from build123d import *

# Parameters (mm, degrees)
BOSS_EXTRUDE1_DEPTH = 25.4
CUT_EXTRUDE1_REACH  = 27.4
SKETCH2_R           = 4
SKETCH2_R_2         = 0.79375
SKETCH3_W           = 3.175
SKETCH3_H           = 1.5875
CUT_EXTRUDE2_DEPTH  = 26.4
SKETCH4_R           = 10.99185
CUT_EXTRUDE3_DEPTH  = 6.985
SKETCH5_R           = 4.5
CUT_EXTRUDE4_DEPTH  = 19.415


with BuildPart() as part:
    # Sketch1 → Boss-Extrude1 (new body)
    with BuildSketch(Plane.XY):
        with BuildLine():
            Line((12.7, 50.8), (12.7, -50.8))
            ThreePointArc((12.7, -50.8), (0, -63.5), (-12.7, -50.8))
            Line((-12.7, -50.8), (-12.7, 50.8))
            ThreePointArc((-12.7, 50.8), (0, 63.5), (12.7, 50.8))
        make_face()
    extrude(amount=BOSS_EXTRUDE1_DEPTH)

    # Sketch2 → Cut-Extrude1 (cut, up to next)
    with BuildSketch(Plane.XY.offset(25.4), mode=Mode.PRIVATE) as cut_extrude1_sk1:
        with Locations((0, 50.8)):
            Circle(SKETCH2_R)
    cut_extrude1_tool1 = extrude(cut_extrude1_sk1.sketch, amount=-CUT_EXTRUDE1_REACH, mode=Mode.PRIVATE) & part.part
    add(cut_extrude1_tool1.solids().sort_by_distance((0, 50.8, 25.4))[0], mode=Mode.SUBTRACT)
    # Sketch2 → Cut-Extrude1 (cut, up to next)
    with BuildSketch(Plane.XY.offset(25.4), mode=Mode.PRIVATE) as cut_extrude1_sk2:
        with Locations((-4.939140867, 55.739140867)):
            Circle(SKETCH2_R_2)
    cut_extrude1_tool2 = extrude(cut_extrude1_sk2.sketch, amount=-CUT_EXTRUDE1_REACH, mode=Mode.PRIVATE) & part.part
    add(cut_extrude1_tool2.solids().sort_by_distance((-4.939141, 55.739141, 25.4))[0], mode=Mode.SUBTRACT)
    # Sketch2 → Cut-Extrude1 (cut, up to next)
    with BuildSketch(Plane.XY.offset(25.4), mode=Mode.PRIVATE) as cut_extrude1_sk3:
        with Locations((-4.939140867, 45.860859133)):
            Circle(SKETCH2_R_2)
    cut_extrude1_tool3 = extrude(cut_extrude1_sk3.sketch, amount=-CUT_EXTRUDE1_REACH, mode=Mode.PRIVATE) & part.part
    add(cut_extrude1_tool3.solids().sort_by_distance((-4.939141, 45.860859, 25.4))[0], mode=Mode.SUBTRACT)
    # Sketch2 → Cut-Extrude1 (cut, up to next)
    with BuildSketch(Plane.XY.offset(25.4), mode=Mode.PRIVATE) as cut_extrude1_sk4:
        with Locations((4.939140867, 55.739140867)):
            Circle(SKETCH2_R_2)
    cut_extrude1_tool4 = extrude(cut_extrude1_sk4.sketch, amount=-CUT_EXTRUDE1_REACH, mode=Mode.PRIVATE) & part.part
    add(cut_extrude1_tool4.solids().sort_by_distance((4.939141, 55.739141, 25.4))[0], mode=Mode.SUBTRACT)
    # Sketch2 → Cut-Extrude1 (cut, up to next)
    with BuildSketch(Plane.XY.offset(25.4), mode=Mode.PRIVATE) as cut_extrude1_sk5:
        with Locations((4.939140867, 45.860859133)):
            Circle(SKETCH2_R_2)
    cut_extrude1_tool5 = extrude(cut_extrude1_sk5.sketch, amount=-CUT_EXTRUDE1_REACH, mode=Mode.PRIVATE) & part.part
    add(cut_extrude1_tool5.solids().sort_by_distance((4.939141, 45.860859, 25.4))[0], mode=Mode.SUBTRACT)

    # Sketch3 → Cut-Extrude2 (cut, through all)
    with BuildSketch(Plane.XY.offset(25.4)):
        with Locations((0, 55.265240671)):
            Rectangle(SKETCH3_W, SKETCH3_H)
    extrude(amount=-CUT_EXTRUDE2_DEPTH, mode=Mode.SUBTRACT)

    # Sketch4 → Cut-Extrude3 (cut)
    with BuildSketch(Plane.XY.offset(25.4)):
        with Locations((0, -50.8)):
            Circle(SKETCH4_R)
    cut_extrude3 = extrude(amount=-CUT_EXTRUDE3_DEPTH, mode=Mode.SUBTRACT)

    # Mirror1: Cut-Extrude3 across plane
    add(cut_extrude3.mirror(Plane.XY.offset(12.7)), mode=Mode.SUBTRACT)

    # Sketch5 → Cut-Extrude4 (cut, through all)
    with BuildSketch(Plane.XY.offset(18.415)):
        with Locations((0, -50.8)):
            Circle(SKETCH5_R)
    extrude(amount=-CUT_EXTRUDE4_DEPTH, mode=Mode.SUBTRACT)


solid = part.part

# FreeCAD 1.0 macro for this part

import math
import FreeCAD as App
import Part
import Sketcher

V = App.Vector
Q = App.Units.Quantity

doc = App.newDocument("Part")
body = doc.addObject("PartDesign::Body", "Body")

sketch1 = doc.addObject("Sketcher::SketchObject", "Sketch")
body.addObject(sketch1)
sketch1.AttachmentSupport = (doc.XY_Plane, [""])
sketch1.MapMode = "FlatFace"
sketch1.addGeometry([
    Part.LineSegment(V(13, -51, 0), V(13, 51, 0)),
    Part.ArcOfCircle(Part.Circle(V(0, 51, 0), V(0, 0, 1), 13), math.radians(0), math.radians(180)),
    Part.LineSegment(V(-13, 51, 0), V(-13, -51, 0)),
    Part.ArcOfCircle(Part.Circle(V(0, -51, 0), V(0, 0, 1), 13), math.radians(180), math.radians(360)),
], False)
sketch1.addConstraint([
    Sketcher.Constraint("Tangent", 0, 2, 1, 1),
    Sketcher.Constraint("Tangent", 1, 2, 2, 1),
    Sketcher.Constraint("Tangent", 2, 2, 3, 1),
    Sketcher.Constraint("Tangent", 3, 2, 0, 1),
    Sketcher.Constraint("Vertical", 0),
    Sketcher.Constraint("Vertical", 2),
    Sketcher.Constraint("Symmetric", 1, 3, 3, 3, -1, 1),
    Sketcher.Constraint("Radius", 1, Q("0.5 in")),
    Sketcher.Constraint("DistanceY", 0, 1, 0, 2, Q("4 in")),
])
pad1 = doc.addObject("PartDesign::Pad", "Pad")
body.addObject(pad1)
pad1.Profile = sketch1
pad1.Length = Q("1 in")

sketch2 = doc.addObject("Sketcher::SketchObject", "Sketch001")
body.addObject(sketch2)
sketch2.AttachmentSupport = (doc.XY_Plane, [""])
sketch2.MapMode = "FlatFace"
sketch2.AttachmentOffset = App.Placement(V(0, 0, 1 * 25.4), App.Rotation())
sketch2.addGeometry(Part.Circle(V(0, 50.8, 0), V(0, 0, 1), 4), False)
sketch2.addConstraint([
    Sketcher.Constraint("PointOnObject", 0, 3, -2),
    Sketcher.Constraint("DistanceY", -1, 1, 0, 3, Q("2 in")),
    Sketcher.Constraint("Diameter", 0, 8.0),
])
pocket1 = doc.addObject("PartDesign::Pocket", "Pocket")
body.addObject(pocket1)
pocket1.Profile = sketch2
pocket1.Type = "UpToFirst"

sketch3 = doc.addObject("Sketcher::SketchObject", "Sketch002")
body.addObject(sketch3)
sketch3.AttachmentSupport = (doc.XY_Plane, [""])
sketch3.MapMode = "FlatFace"
sketch3.AttachmentOffset = App.Placement(V(0, 0, 1 * 25.4), App.Rotation())
sketch3.addGeometry(Part.Circle(V(-4.9, 55.7, 0), V(0, 0, 1), 0.8), False)
sketch3.addConstraint([
    Sketcher.Constraint("Diameter", 0, Q("0.0625 in")),
    Sketcher.Constraint("DistanceX", 0, 3, -1, 1, 4.939141),
    Sketcher.Constraint("DistanceY", -1, 1, 0, 3, 55.739141),
])
pocket2 = doc.addObject("PartDesign::Pocket", "Pocket001")
body.addObject(pocket2)
pocket2.Profile = sketch3
pocket2.Type = "UpToFirst"

sketch4 = doc.addObject("Sketcher::SketchObject", "Sketch003")
body.addObject(sketch4)
sketch4.AttachmentSupport = (doc.XY_Plane, [""])
sketch4.MapMode = "FlatFace"
sketch4.AttachmentOffset = App.Placement(V(0, 0, 1 * 25.4), App.Rotation())
sketch4.addGeometry(Part.Circle(V(-4.9, 45.9, 0), V(0, 0, 1), 0.8), False)
sketch4.addConstraint([
    Sketcher.Constraint("Diameter", 0, Q("0.0625 in")),
    Sketcher.Constraint("DistanceX", 0, 3, -1, 1, 4.939141),
    Sketcher.Constraint("DistanceY", -1, 1, 0, 3, 45.860859),
])
pocket3 = doc.addObject("PartDesign::Pocket", "Pocket002")
body.addObject(pocket3)
pocket3.Profile = sketch4
pocket3.Type = "UpToFirst"

sketch5 = doc.addObject("Sketcher::SketchObject", "Sketch004")
body.addObject(sketch5)
sketch5.AttachmentSupport = (doc.XY_Plane, [""])
sketch5.MapMode = "FlatFace"
sketch5.AttachmentOffset = App.Placement(V(0, 0, 1 * 25.4), App.Rotation())
sketch5.addGeometry(Part.Circle(V(4.9, 55.7, 0), V(0, 0, 1), 0.8), False)
sketch5.addConstraint([
    Sketcher.Constraint("Diameter", 0, Q("0.0625 in")),
    Sketcher.Constraint("DistanceX", -1, 1, 0, 3, 4.939141),
    Sketcher.Constraint("DistanceY", -1, 1, 0, 3, 55.739141),
])
pocket4 = doc.addObject("PartDesign::Pocket", "Pocket003")
body.addObject(pocket4)
pocket4.Profile = sketch5
pocket4.Type = "UpToFirst"

sketch6 = doc.addObject("Sketcher::SketchObject", "Sketch005")
body.addObject(sketch6)
sketch6.AttachmentSupport = (doc.XY_Plane, [""])
sketch6.MapMode = "FlatFace"
sketch6.AttachmentOffset = App.Placement(V(0, 0, 1 * 25.4), App.Rotation())
sketch6.addGeometry(Part.Circle(V(4.9, 45.9, 0), V(0, 0, 1), 0.8), False)
sketch6.addConstraint([
    Sketcher.Constraint("Diameter", 0, Q("0.0625 in")),
    Sketcher.Constraint("DistanceX", -1, 1, 0, 3, 4.939141),
    Sketcher.Constraint("DistanceY", -1, 1, 0, 3, 45.860859),
])
pocket5 = doc.addObject("PartDesign::Pocket", "Pocket004")
body.addObject(pocket5)
pocket5.Profile = sketch6
pocket5.Type = "UpToFirst"

sketch7 = doc.addObject("Sketcher::SketchObject", "Sketch006")
body.addObject(sketch7)
sketch7.AttachmentSupport = (doc.XY_Plane, [""])
sketch7.MapMode = "FlatFace"
sketch7.AttachmentOffset = App.Placement(V(0, 0, 1 * 25.4), App.Rotation())
sketch7.addGeometry([
    Part.LineSegment(V(-1.6, 56.1, 0), V(-1.6, 54.5, 0)),
    Part.LineSegment(V(-1.6, 54.5, 0), V(1.6, 54.5, 0)),
    Part.LineSegment(V(1.6, 54.5, 0), V(1.6, 56.1, 0)),
    Part.LineSegment(V(1.6, 56.1, 0), V(-1.6, 56.1, 0)),
], False)
sketch7.addConstraint([
    Sketcher.Constraint("Coincident", 0, 2, 1, 1),
    Sketcher.Constraint("Coincident", 1, 2, 2, 1),
    Sketcher.Constraint("Coincident", 2, 2, 3, 1),
    Sketcher.Constraint("Coincident", 3, 2, 0, 1),
    Sketcher.Constraint("Vertical", 0),
    Sketcher.Constraint("Horizontal", 1),
    Sketcher.Constraint("Vertical", 2),
    Sketcher.Constraint("Horizontal", 3),
    Sketcher.Constraint("DistanceX", 1, 1, 1, 2, Q("0.125 in")),
    Sketcher.Constraint("DistanceY", 0, 2, 0, 1, Q("0.0625 in")),
    Sketcher.Constraint("DistanceX", 0, 2, -1, 1, Q("0.0625 in")),
    Sketcher.Constraint("DistanceY", -1, 1, 0, 2, 54.471491),
])
pocket6 = doc.addObject("PartDesign::Pocket", "Pocket005")
body.addObject(pocket6)
pocket6.Profile = sketch7
pocket6.Type = "ThroughAll"

sketch8 = doc.addObject("Sketcher::SketchObject", "Sketch007")
body.addObject(sketch8)
sketch8.AttachmentSupport = (doc.XY_Plane, [""])
sketch8.MapMode = "FlatFace"
sketch8.AttachmentOffset = App.Placement(V(0, 0, 1 * 25.4), App.Rotation())
sketch8.addGeometry(Part.Circle(V(0, -51, 0), V(0, 0, 1), 11), False)
sketch8.addConstraint([
    Sketcher.Constraint("PointOnObject", 0, 3, -2),
    Sketcher.Constraint("DistanceY", 0, 3, -1, 1, Q("2 in")),
    Sketcher.Constraint("Diameter", 0, Q("0.8655 in")),
])
pocket7 = doc.addObject("PartDesign::Pocket", "Pocket006")
body.addObject(pocket7)
pocket7.Profile = sketch8
pocket7.Length = Q("0.275 in")
doc.recompute()

datumplane = doc.addObject("PartDesign::Plane", "DatumPlane")
body.addObject(datumplane)
datumplane.AttachmentSupport = (doc.XY_Plane, [""])
datumplane.MapMode = "FlatFace"
datumplane.AttachmentOffset = App.Placement(V(0, 0, 0.5 * 25.4), App.Rotation())
mirrored = doc.addObject("PartDesign::Mirrored", "Mirrored")
body.addObject(mirrored)
mirrored.Originals = [pocket7]
mirrored.MirrorPlane = (datumplane, [""])
body.Tip = mirrored

sketch9 = doc.addObject("Sketcher::SketchObject", "Sketch008")
body.addObject(sketch9)
sketch9.AttachmentSupport = (doc.XY_Plane, [""])
sketch9.MapMode = "FlatFace"
sketch9.AttachmentOffset = App.Placement(V(0, 0, 0.725 * 25.4), App.Rotation())
sketch9.addGeometry(Part.Circle(V(0, -50.8, 0), V(0, 0, 1), 4.5), False)
sketch9.addConstraint([
    Sketcher.Constraint("PointOnObject", 0, 3, -2),
    Sketcher.Constraint("DistanceY", 0, 3, -1, 1, Q("2 in")),
    Sketcher.Constraint("Diameter", 0, 9.0),
])
pocket8 = doc.addObject("PartDesign::Pocket", "Pocket007")
body.addObject(pocket8)
pocket8.Profile = sketch9
pocket8.Type = "ThroughAll"

doc.recompute()
